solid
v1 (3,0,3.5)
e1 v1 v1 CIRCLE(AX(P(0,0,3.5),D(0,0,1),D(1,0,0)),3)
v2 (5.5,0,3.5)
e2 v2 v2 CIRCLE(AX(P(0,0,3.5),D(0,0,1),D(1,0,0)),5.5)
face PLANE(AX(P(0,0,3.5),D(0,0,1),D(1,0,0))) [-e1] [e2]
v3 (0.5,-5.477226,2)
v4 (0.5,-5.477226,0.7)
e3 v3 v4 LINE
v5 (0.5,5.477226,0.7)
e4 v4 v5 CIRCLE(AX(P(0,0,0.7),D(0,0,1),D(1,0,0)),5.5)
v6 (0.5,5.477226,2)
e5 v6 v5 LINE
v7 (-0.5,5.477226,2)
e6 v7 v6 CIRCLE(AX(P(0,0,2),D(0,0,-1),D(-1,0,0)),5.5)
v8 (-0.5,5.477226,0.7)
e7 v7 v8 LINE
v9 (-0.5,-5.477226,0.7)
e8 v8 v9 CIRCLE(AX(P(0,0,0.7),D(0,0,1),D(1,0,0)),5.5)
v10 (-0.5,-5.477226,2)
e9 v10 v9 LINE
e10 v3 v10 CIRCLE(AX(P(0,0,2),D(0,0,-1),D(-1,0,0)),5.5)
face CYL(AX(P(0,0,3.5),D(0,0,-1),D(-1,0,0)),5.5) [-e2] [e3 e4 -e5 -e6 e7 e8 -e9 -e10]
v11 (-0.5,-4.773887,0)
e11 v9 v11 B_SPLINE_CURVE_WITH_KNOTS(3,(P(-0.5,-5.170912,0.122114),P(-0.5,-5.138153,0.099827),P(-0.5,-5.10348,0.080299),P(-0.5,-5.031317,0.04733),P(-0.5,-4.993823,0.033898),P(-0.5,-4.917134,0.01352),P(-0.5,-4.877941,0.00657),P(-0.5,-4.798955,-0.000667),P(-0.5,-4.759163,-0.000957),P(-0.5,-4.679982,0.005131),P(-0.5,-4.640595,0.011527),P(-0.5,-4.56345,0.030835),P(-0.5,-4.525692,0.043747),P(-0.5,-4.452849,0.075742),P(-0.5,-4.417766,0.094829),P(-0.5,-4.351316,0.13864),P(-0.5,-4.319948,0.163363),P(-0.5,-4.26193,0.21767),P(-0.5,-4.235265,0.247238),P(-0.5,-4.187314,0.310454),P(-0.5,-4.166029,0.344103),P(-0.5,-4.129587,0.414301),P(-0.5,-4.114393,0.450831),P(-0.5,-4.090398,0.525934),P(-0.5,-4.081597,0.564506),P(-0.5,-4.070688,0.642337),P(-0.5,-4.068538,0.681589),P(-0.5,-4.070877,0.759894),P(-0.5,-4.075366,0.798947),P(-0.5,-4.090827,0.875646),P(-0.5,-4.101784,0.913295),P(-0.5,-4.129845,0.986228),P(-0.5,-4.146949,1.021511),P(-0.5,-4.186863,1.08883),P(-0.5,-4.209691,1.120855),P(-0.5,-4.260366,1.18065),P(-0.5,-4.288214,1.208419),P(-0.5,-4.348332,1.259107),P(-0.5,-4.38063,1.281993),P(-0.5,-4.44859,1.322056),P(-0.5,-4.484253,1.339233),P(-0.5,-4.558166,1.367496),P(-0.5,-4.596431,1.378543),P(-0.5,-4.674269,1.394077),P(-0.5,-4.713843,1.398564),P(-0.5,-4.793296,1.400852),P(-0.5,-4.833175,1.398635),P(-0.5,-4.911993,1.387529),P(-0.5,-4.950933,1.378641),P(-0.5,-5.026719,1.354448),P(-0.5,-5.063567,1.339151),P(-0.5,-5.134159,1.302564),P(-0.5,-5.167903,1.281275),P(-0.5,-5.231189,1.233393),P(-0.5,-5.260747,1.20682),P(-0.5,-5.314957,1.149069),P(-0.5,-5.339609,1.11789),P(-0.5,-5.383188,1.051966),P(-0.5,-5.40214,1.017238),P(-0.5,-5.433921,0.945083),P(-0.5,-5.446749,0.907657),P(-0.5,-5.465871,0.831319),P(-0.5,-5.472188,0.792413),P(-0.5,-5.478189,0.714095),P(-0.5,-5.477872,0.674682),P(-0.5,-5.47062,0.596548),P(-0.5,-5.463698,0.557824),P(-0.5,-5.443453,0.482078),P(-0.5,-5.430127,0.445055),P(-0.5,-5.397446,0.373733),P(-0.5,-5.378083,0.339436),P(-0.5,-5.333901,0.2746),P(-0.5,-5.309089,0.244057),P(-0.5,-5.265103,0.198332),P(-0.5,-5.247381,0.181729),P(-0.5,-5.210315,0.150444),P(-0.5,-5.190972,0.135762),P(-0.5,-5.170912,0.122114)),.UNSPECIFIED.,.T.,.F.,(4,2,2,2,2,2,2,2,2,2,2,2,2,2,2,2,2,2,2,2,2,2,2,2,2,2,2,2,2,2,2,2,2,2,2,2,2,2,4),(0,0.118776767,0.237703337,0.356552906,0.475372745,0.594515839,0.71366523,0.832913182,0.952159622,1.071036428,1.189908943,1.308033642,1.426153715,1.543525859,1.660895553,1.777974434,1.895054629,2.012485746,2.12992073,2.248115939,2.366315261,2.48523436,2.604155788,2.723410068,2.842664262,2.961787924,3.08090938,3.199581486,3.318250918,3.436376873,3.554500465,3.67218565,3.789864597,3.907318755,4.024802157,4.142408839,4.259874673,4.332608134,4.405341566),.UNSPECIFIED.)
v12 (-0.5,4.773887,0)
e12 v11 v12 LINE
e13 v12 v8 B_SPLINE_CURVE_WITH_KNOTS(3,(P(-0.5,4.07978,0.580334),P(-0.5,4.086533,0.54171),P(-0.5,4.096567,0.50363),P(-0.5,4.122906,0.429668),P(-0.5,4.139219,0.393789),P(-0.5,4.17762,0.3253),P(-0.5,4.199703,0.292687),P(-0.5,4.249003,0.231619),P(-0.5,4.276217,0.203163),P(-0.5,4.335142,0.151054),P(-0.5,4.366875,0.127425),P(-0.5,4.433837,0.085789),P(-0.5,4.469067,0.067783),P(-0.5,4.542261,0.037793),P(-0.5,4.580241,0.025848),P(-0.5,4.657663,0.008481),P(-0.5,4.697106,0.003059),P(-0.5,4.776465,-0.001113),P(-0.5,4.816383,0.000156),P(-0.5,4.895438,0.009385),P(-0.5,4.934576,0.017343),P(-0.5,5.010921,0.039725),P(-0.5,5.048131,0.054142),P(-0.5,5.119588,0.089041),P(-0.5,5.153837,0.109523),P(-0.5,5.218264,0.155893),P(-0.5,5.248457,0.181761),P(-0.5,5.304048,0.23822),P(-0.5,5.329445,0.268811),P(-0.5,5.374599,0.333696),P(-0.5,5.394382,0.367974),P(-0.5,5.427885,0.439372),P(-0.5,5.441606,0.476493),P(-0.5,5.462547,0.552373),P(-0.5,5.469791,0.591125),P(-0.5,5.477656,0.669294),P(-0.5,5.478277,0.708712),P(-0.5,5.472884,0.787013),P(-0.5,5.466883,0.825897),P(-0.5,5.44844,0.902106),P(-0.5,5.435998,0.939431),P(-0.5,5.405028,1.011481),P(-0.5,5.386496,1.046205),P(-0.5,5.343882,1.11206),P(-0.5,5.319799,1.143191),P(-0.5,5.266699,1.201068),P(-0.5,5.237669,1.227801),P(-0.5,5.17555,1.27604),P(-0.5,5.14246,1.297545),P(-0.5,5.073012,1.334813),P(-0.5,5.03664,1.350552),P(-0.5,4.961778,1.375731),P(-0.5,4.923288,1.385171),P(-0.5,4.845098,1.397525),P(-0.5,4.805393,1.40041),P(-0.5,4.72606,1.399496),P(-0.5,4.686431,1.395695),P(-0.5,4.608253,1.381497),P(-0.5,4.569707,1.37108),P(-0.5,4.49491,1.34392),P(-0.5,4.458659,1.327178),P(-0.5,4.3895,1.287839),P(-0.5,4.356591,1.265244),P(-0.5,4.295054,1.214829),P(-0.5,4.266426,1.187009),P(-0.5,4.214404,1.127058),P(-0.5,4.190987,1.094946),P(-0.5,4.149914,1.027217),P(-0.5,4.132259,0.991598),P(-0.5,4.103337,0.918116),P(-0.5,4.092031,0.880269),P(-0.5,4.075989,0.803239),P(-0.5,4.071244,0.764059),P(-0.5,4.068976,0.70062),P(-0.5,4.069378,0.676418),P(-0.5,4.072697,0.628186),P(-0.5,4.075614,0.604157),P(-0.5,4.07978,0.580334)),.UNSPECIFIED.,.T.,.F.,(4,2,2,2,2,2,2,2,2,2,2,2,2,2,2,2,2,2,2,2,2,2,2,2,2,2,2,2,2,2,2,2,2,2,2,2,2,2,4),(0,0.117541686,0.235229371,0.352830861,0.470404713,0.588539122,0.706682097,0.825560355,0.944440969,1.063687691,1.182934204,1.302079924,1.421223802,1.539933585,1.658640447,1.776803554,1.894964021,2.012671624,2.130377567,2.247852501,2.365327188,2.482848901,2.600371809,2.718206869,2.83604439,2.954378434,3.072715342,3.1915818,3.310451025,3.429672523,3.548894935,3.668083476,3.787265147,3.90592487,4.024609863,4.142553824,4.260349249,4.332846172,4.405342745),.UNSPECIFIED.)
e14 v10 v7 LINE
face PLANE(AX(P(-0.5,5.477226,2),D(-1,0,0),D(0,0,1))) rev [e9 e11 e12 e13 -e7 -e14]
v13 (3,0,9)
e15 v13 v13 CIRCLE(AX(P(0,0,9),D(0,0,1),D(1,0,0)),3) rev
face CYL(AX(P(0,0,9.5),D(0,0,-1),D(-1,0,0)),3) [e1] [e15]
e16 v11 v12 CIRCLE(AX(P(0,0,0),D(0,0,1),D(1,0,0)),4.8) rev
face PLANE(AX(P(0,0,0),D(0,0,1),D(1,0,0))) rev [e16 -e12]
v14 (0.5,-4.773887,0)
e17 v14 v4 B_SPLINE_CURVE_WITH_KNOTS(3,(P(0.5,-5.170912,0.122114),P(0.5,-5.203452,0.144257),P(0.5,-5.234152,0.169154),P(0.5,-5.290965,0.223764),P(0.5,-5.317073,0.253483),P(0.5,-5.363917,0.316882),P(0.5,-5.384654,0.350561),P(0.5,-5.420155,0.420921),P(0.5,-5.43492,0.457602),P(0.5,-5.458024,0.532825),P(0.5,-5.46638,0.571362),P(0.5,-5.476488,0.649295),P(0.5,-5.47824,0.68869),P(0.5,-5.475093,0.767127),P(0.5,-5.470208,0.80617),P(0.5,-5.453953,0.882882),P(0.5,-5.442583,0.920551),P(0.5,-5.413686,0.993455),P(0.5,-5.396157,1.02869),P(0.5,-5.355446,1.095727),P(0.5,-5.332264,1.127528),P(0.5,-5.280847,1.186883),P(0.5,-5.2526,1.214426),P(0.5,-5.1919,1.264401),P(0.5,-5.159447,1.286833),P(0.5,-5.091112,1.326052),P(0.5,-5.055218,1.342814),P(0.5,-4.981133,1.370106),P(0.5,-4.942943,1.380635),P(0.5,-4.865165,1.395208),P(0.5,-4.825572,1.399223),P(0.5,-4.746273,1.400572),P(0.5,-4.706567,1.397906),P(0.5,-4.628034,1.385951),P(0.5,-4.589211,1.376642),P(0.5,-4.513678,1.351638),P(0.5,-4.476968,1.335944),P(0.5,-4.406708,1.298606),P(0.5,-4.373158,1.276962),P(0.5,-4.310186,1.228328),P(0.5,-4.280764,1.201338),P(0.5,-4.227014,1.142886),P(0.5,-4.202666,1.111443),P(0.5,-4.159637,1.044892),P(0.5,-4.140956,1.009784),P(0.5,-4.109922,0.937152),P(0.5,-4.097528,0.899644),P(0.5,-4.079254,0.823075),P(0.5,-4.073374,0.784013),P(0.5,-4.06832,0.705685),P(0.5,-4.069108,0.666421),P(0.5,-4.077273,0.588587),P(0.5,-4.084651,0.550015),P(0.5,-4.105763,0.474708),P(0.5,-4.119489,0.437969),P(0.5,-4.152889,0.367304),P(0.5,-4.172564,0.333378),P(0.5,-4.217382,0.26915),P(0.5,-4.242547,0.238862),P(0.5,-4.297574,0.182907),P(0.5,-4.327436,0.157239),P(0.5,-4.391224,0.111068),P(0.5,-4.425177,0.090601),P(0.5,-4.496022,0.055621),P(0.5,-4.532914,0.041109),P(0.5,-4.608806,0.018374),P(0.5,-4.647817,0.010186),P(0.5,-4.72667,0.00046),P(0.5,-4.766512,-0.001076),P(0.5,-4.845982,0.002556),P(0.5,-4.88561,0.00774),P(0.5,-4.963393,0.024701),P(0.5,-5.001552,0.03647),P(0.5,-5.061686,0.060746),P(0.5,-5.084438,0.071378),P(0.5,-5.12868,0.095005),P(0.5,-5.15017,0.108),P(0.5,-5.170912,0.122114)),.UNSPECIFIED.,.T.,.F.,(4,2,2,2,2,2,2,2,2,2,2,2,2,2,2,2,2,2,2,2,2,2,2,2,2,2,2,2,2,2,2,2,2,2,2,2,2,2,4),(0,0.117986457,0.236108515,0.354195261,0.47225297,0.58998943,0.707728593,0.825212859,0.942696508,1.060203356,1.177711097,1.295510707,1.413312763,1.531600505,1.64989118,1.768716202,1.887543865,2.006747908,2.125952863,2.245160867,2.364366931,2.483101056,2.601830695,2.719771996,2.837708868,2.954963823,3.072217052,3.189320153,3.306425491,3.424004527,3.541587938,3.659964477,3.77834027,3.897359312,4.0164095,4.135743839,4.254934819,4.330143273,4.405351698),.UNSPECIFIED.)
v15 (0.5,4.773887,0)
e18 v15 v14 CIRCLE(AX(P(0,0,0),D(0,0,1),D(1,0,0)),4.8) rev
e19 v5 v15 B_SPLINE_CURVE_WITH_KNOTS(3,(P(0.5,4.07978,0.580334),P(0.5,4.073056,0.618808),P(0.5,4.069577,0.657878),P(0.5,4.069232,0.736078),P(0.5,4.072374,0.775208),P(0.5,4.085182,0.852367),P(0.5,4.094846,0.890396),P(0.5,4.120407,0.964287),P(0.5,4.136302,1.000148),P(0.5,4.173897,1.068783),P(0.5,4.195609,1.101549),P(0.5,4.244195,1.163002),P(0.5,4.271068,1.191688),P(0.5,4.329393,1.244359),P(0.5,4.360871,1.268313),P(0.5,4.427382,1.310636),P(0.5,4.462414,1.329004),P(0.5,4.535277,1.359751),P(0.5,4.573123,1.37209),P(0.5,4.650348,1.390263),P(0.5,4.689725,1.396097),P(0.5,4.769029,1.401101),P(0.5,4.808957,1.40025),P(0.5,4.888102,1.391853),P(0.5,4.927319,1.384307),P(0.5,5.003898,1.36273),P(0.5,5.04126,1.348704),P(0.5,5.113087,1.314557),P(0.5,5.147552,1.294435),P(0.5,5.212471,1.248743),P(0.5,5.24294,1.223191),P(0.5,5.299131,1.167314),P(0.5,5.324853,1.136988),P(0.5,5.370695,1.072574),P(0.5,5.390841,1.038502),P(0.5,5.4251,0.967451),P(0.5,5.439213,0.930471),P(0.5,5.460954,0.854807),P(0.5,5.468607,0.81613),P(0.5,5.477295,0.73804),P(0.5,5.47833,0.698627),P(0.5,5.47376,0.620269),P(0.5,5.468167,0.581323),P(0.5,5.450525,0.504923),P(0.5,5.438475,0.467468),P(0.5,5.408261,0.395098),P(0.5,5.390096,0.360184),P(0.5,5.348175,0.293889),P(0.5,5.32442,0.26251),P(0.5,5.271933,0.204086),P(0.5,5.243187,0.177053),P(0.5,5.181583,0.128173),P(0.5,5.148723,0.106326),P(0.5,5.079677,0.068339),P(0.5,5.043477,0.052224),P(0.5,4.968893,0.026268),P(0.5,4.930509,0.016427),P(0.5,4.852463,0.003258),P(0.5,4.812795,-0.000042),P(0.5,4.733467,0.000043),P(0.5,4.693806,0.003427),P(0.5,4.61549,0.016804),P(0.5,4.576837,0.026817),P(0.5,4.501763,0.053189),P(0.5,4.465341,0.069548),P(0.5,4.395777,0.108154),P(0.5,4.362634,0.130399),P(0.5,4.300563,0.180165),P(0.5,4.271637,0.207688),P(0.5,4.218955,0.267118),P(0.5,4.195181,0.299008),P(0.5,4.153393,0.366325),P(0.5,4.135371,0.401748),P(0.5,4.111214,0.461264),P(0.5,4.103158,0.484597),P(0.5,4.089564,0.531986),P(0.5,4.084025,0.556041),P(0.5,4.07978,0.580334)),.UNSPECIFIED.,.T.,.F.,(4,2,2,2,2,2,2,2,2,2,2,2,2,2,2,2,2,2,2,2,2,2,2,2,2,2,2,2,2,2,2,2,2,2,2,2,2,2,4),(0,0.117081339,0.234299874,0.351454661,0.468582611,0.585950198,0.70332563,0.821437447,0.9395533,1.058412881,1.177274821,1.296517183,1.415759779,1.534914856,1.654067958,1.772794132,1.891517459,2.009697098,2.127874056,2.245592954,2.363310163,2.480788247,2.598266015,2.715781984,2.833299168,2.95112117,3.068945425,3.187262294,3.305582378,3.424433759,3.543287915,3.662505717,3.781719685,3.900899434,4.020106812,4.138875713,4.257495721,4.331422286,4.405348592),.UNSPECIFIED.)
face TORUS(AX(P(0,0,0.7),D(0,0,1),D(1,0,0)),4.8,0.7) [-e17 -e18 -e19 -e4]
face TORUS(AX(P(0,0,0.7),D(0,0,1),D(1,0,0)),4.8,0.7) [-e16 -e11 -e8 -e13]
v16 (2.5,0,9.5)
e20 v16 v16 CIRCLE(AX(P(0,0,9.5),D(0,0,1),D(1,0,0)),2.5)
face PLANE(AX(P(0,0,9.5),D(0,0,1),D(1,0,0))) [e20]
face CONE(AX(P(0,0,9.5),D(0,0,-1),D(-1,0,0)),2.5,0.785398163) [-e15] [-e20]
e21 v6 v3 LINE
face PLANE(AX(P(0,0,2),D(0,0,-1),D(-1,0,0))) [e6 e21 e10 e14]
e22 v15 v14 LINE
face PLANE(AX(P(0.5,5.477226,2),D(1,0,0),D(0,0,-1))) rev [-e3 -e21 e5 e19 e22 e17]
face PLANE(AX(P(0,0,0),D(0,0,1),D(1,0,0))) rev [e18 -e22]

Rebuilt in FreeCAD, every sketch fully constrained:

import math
import FreeCAD as App
import Part
import Sketcher
from FreeCAD import Vector
Q = App.Units.Quantity


def edges_at(feature, points):
    """Names of the edges that pass closest to the given points."""
    edges = feature.Shape.Edges
    near = lambda p: min(range(len(edges)), key=lambda i: edges[i].distToShape(Part.Vertex(*p))[0])
    return sorted({f"Edge{near(p) + 1}" for p in points})

doc = App.newDocument("Part")
body = doc.addObject("PartDesign::Body", "Body")

sketch1 = doc.addObject("Sketcher::SketchObject", "Sketch")
body.addObject(sketch1)
sketch1.AttachmentSupport = (doc.XY_Plane, [""])
sketch1.MapMode = "FlatFace"
sketch1.addGeometry(Part.Circle(Vector(0, 0, 0), Vector(0, 0, 1), 6), False)
sketch1.addConstraint([
    Sketcher.Constraint("Coincident", 0, 3, -1, 1),
    Sketcher.Constraint("Diameter", 0, Q("11 mm")),
])
pad1 = doc.addObject("PartDesign::Pad", "Pad")
body.addObject(pad1)
pad1.Profile = sketch1
pad1.Length = 3.5

sketch2 = doc.addObject("Sketcher::SketchObject", "Sketch001")
body.addObject(sketch2)
sketch2.AttachmentSupport = (doc.XY_Plane, [""])
sketch2.MapMode = "FlatFace"
sketch2.AttachmentOffset = App.Placement(Vector(0, 0, 3.5), App.Rotation())
sketch2.addGeometry(Part.Circle(Vector(0, 0, 0), Vector(0, 0, 1), 3), False)
sketch2.addConstraint([
    Sketcher.Constraint("Coincident", 0, 3, -1, 1),
    Sketcher.Constraint("Diameter", 0, Q("6 mm")),
])
pad2 = doc.addObject("PartDesign::Pad", "Pad001")
body.addObject(pad2)
pad2.Profile = sketch2
pad2.Length = 6
doc.recompute()

fillet = doc.addObject("PartDesign::Fillet", "Fillet")
body.addObject(fillet)
fillet.Base = (pad2, edges_at(pad2, [(-5.5, 0, 0)]))
fillet.Radius = 0.7
doc.recompute()

chamfer = doc.addObject("PartDesign::Chamfer", "Chamfer")
body.addObject(chamfer)
chamfer.Base = (fillet, edges_at(fillet, [(-3, 0, 9.5)]))
chamfer.Size = 0.5

sketch3 = doc.addObject("Sketcher::SketchObject", "Sketch002")
body.addObject(sketch3)
sketch3.AttachmentSupport = (doc.XY_Plane, [""])
sketch3.MapMode = "FlatFace"
sketch3.addGeometry([
    Part.LineSegment(Vector(0.5, 5.5, 0), Vector(0.5, -5.5, 0)),
    Part.ArcOfCircle(Part.Circle(Vector(0, 0, 0), Vector(0, 0, 1), 5.5), math.radians(-95.22), math.radians(-84.78)),
    Part.LineSegment(Vector(-0.5, -5.5, 0), Vector(-0.5, 5.5, 0)),
    Part.ArcOfCircle(Part.Circle(Vector(0, 0, 0), Vector(0, 0, 1), 5.5), math.radians(84.78), math.radians(95.22)),
], False)
sketch3.addConstraint([
    Sketcher.Constraint("Coincident", 0, 2, 1, 2),
    Sketcher.Constraint("Coincident", 1, 1, 2, 1),
    Sketcher.Constraint("Coincident", 2, 2, 3, 2),
    Sketcher.Constraint("Coincident", 3, 1, 0, 1),
    Sketcher.Constraint("Vertical", 0),
    Sketcher.Constraint("Vertical", 2),
    Sketcher.Constraint("Coincident", 1, 3, -1, 1),
    Sketcher.Constraint("Coincident", 3, 3, -1, 1),
    Sketcher.Constraint("Equal", 1, 3),
    Sketcher.Constraint("Horizontal", 0, 2, 1, 1),
    Sketcher.Constraint("Radius", 1, Q("5.5 mm")),
    Sketcher.Constraint("DistanceX", 1, 1, 0, 2, Q("1 mm")),
])
pocket1 = doc.addObject("PartDesign::Pocket", "Pocket")
body.addObject(pocket1)
pocket1.Profile = sketch3
pocket1.Length = 2
pocket1.Reversed = True

doc.recompute()
